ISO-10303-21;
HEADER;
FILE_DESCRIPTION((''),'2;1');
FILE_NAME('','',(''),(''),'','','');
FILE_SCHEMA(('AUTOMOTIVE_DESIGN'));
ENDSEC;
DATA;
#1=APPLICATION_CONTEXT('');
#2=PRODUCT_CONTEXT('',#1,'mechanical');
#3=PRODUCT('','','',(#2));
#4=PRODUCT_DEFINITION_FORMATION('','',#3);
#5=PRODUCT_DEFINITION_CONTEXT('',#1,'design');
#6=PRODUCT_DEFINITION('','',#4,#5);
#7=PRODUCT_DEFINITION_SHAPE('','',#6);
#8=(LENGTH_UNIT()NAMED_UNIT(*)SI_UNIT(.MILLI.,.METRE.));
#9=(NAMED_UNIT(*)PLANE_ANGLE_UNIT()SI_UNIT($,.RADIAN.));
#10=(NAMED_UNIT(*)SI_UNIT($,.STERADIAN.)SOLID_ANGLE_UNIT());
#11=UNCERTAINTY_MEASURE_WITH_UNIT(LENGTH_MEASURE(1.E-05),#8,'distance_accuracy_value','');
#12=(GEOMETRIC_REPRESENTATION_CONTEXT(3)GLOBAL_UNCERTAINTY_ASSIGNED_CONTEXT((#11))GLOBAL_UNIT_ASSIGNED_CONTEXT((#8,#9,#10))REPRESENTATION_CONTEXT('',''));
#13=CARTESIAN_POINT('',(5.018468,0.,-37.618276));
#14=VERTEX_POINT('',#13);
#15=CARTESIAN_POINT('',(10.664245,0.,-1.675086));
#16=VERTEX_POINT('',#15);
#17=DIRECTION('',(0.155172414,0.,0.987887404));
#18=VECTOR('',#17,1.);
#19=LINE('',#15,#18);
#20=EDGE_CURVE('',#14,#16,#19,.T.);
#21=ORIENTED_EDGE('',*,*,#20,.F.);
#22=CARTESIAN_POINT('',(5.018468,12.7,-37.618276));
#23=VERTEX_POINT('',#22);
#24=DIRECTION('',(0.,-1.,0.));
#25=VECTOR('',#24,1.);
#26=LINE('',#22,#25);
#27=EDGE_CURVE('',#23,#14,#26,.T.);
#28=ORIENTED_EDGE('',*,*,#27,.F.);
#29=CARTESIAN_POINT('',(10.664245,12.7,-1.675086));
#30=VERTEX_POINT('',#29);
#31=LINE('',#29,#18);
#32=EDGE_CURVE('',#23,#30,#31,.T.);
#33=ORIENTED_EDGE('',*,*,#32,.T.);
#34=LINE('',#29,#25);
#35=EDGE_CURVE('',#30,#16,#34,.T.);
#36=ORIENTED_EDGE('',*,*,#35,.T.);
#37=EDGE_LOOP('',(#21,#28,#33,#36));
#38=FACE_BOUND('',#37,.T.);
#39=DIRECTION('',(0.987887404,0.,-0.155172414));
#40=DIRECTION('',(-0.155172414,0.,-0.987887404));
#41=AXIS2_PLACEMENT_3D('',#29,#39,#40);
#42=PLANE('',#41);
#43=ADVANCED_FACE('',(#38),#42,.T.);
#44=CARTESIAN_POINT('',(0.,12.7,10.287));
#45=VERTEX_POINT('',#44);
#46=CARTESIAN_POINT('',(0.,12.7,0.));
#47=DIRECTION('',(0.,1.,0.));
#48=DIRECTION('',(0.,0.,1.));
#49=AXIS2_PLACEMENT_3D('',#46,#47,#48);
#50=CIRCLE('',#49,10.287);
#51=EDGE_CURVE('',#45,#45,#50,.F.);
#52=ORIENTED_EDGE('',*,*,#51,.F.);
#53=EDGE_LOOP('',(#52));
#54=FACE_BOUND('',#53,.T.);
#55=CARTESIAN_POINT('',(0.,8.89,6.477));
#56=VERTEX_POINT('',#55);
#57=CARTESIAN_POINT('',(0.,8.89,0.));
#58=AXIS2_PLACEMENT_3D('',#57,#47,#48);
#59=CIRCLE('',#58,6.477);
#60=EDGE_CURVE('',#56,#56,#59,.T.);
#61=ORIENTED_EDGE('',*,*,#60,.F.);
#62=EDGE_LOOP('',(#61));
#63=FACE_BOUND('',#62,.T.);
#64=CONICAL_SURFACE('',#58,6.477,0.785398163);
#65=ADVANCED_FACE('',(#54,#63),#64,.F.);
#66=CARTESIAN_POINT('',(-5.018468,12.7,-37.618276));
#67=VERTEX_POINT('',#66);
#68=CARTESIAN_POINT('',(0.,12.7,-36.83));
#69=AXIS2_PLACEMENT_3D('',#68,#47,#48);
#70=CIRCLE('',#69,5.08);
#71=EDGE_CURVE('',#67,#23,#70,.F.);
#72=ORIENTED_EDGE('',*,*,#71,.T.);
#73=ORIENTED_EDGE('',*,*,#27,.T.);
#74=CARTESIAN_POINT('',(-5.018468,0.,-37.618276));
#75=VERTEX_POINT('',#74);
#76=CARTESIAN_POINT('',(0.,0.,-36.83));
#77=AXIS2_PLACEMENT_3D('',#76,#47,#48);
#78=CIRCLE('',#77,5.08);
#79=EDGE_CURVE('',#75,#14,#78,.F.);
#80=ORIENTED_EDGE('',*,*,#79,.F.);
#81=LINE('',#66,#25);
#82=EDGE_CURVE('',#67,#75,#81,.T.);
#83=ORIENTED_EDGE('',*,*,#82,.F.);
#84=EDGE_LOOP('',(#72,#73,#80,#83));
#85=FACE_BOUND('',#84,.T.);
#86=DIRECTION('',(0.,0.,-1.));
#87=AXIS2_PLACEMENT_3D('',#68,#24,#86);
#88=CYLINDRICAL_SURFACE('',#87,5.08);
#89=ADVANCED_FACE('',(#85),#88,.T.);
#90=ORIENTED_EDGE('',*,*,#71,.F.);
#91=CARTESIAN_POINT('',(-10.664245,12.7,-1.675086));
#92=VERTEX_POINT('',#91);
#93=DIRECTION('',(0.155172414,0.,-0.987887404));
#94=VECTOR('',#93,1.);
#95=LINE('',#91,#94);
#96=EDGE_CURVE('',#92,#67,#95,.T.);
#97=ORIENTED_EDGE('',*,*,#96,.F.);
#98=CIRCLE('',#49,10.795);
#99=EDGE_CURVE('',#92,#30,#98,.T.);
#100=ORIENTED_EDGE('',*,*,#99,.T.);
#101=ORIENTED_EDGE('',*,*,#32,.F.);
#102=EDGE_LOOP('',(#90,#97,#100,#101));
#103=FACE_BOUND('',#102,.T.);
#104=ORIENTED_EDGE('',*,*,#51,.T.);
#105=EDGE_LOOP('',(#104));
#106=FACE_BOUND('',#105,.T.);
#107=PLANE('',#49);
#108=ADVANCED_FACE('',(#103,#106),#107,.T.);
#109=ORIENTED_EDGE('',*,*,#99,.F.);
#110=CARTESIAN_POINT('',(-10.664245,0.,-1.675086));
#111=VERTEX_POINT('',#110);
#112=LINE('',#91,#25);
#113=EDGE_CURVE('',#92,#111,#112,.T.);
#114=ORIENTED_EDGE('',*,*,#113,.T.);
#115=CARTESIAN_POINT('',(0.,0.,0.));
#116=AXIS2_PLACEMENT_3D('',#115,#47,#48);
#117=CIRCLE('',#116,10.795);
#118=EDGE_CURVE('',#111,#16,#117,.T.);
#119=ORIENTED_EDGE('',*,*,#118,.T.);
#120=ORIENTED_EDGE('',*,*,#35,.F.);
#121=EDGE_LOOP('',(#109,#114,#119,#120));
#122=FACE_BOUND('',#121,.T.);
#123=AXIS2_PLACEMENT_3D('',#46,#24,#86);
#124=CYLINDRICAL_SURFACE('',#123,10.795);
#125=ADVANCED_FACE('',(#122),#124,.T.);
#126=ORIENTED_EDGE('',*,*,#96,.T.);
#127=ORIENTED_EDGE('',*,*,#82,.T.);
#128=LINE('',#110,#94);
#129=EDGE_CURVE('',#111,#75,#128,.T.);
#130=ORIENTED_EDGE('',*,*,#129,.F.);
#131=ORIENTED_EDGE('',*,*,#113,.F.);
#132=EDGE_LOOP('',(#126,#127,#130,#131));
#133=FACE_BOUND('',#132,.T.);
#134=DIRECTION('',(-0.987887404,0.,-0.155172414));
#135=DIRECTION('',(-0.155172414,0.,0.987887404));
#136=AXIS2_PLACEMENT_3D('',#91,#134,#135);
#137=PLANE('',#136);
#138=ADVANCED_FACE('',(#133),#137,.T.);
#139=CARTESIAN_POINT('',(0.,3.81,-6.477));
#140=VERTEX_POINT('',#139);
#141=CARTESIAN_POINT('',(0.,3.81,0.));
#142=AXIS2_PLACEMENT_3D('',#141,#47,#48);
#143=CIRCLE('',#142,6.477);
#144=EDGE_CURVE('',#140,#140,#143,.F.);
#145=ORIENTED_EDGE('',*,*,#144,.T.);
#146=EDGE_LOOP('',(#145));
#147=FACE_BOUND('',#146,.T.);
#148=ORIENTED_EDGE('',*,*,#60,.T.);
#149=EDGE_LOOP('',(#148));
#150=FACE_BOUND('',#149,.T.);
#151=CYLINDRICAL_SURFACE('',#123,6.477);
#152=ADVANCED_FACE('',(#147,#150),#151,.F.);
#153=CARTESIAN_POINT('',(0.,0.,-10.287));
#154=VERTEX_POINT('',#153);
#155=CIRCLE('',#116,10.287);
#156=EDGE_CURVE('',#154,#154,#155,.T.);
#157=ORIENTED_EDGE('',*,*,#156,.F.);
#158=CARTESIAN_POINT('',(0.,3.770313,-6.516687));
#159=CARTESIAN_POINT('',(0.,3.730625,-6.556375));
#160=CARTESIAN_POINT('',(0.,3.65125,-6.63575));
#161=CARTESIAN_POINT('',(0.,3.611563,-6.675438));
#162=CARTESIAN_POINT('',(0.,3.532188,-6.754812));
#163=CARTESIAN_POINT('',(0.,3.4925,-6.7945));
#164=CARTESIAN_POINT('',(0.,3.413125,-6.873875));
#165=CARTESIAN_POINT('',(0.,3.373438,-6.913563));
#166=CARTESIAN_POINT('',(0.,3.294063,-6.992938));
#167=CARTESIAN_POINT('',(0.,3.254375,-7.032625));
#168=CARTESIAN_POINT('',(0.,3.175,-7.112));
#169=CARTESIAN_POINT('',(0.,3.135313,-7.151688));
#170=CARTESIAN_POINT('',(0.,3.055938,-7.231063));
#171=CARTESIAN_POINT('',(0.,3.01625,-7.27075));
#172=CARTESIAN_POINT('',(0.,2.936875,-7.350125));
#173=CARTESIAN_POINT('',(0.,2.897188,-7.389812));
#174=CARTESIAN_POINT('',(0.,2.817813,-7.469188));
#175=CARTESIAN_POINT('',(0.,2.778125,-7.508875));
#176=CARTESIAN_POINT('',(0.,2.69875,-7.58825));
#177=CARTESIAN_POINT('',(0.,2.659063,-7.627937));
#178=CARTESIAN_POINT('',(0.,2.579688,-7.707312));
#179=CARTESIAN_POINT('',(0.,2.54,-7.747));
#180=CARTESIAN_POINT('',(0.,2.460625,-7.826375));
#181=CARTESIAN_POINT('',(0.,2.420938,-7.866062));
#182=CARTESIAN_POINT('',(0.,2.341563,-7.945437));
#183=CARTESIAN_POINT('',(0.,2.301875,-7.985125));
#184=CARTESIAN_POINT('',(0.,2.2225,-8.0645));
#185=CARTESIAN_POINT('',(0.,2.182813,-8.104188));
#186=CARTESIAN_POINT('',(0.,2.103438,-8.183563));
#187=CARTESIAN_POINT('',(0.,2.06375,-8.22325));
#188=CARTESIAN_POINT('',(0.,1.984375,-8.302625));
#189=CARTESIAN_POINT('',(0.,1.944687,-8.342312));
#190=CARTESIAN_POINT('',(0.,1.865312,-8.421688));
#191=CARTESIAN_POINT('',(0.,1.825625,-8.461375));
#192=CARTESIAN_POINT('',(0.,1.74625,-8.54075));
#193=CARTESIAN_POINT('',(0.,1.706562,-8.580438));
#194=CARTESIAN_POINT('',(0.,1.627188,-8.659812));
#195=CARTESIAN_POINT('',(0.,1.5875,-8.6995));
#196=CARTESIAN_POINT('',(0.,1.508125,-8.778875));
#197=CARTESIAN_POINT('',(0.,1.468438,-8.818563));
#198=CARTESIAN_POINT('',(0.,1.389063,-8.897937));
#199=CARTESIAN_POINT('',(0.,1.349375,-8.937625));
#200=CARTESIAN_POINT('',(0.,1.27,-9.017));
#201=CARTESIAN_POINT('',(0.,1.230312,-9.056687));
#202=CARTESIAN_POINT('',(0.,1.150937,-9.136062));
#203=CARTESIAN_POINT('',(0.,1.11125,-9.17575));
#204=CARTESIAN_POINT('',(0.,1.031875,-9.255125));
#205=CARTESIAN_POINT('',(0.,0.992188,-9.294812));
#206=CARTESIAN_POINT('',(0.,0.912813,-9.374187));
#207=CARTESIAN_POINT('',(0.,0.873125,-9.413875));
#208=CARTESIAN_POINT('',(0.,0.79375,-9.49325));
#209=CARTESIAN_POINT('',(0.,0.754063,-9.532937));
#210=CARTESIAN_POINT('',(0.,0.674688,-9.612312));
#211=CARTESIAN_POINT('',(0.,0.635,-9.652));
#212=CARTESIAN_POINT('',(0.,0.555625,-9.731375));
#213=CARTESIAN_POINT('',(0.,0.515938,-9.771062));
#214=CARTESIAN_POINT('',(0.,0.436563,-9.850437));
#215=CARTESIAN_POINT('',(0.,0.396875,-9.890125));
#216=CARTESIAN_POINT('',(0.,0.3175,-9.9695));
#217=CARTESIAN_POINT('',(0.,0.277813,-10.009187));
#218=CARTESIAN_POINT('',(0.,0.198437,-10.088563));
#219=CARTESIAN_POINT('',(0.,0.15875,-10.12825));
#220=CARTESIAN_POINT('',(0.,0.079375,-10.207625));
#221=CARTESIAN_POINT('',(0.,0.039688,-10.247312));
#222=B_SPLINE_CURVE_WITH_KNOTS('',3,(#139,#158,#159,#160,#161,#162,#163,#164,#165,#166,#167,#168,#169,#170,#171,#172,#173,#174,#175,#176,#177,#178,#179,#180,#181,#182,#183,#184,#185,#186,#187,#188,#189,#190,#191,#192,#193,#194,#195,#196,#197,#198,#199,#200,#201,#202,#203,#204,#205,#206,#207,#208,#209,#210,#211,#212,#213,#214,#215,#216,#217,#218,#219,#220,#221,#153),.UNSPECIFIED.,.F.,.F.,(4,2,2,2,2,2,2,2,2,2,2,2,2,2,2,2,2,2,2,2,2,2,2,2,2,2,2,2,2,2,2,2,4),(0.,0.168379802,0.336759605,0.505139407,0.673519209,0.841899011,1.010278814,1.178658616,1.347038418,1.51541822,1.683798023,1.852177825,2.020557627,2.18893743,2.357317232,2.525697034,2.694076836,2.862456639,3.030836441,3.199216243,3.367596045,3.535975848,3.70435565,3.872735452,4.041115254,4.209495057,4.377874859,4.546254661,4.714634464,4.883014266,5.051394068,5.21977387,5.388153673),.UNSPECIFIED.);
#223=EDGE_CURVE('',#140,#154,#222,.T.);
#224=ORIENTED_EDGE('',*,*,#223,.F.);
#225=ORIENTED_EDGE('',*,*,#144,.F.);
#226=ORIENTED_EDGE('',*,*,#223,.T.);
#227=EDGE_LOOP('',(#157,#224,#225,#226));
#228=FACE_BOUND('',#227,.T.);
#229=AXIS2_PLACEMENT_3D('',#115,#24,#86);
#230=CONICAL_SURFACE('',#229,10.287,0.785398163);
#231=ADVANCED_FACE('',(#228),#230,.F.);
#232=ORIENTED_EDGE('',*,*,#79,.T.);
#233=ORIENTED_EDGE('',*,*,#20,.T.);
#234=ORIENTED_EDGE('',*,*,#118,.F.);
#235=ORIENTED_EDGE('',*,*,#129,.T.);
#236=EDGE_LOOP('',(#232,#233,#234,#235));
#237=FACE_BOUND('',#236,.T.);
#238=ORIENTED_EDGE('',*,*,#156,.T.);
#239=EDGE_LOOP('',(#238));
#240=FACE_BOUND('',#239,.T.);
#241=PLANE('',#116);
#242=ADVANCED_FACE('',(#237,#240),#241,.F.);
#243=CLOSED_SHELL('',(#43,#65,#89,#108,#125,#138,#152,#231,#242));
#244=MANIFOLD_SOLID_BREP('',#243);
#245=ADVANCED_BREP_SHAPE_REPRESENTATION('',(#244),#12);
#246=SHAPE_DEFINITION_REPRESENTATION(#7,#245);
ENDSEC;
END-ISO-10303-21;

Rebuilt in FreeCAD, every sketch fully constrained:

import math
import FreeCAD as App
import Part
import Sketcher

V = App.Vector
Q = App.Units.Quantity


def edges_at(feature, points):
    """Names of the edges that pass closest to the given points."""
    edges = feature.Shape.Edges
    near = lambda p: min(range(len(edges)), key=lambda i: edges[i].distToShape(Part.Vertex(*p))[0])
    return sorted({f"Edge{near(p) + 1}" for p in points})

doc = App.newDocument("Part")
body = doc.addObject("PartDesign::Body", "Body")

# Sketch on XZ plane
sketch1 = doc.addObject("Sketcher::SketchObject", "Sketch")
body.addObject(sketch1)
sketch1.AttachmentSupport = (doc.XZ_Plane, [""])
sketch1.MapMode = "FlatFace"
sketch1.addGeometry(Part.LineSegment(V(-5.018468, -37.618276, 0), V(-10.664245, -1.675086, 0)), False)
sketch1.addGeometry(Part.ArcOfCircle(Part.Circle(V(0, 0, 0), V(0, 0, 1), 10.795), math.radians(-8.926796), math.radians(188.926796)), False)
sketch1.addGeometry(Part.LineSegment(V(10.664245, -1.675086, 0), V(5.018468, -37.618276, 0)), False)
sketch1.addGeometry(Part.ArcOfCircle(Part.Circle(V(0, -36.83, 0), V(0, 0, 1), 5.08), math.radians(-171.073204), math.radians(-8.926796)), False)
sketch1.addGeometry(Part.Circle(V(0, 0, 0), V(0, 0, 1), 6.477), False)
sketch1.addConstraint(Sketcher.Constraint("Tangent", 0, 2, 1, 2))
sketch1.addConstraint(Sketcher.Constraint("Tangent", 1, 1, 2, 1))
sketch1.addConstraint(Sketcher.Constraint("Tangent", 2, 2, 3, 2))
sketch1.addConstraint(Sketcher.Constraint("Tangent", 3, 1, 0, 1))
sketch1.addConstraint(Sketcher.Constraint("Coincident", 1, 3, -1, 1))
sketch1.addConstraint(Sketcher.Constraint("Coincident", 4, 3, -1, 1))
sketch1.addConstraint(Sketcher.Constraint("PointOnObject", 3, 3, -2))
sketch1.addConstraint(Sketcher.Constraint("Radius", 3, Q("0.2 in")))
sketch1.addConstraint(Sketcher.Constraint("Diameter", 4, Q("0.51 in")))
sketch1.addConstraint(Sketcher.Constraint("Radius", 1, Q("0.425 in")))
sketch1.addConstraint(Sketcher.Constraint("DistanceY", 3, 3, -1, 1, Q("1.45 in")))
pad1 = doc.addObject("PartDesign::Pad", "Pad")
body.addObject(pad1)
pad1.Profile = sketch1
pad1.Length = Q("0.5 in")
pad1.Reversed = True
doc.recompute()

chamfer = doc.addObject("PartDesign::Chamfer", "Chamfer")
body.addObject(chamfer)
chamfer.Base = (pad1, edges_at(pad1, [(0, 12.7, -6.477), (0, 0, -6.477)]))
chamfer.Size = Q("0.15 in")

doc.recompute()
